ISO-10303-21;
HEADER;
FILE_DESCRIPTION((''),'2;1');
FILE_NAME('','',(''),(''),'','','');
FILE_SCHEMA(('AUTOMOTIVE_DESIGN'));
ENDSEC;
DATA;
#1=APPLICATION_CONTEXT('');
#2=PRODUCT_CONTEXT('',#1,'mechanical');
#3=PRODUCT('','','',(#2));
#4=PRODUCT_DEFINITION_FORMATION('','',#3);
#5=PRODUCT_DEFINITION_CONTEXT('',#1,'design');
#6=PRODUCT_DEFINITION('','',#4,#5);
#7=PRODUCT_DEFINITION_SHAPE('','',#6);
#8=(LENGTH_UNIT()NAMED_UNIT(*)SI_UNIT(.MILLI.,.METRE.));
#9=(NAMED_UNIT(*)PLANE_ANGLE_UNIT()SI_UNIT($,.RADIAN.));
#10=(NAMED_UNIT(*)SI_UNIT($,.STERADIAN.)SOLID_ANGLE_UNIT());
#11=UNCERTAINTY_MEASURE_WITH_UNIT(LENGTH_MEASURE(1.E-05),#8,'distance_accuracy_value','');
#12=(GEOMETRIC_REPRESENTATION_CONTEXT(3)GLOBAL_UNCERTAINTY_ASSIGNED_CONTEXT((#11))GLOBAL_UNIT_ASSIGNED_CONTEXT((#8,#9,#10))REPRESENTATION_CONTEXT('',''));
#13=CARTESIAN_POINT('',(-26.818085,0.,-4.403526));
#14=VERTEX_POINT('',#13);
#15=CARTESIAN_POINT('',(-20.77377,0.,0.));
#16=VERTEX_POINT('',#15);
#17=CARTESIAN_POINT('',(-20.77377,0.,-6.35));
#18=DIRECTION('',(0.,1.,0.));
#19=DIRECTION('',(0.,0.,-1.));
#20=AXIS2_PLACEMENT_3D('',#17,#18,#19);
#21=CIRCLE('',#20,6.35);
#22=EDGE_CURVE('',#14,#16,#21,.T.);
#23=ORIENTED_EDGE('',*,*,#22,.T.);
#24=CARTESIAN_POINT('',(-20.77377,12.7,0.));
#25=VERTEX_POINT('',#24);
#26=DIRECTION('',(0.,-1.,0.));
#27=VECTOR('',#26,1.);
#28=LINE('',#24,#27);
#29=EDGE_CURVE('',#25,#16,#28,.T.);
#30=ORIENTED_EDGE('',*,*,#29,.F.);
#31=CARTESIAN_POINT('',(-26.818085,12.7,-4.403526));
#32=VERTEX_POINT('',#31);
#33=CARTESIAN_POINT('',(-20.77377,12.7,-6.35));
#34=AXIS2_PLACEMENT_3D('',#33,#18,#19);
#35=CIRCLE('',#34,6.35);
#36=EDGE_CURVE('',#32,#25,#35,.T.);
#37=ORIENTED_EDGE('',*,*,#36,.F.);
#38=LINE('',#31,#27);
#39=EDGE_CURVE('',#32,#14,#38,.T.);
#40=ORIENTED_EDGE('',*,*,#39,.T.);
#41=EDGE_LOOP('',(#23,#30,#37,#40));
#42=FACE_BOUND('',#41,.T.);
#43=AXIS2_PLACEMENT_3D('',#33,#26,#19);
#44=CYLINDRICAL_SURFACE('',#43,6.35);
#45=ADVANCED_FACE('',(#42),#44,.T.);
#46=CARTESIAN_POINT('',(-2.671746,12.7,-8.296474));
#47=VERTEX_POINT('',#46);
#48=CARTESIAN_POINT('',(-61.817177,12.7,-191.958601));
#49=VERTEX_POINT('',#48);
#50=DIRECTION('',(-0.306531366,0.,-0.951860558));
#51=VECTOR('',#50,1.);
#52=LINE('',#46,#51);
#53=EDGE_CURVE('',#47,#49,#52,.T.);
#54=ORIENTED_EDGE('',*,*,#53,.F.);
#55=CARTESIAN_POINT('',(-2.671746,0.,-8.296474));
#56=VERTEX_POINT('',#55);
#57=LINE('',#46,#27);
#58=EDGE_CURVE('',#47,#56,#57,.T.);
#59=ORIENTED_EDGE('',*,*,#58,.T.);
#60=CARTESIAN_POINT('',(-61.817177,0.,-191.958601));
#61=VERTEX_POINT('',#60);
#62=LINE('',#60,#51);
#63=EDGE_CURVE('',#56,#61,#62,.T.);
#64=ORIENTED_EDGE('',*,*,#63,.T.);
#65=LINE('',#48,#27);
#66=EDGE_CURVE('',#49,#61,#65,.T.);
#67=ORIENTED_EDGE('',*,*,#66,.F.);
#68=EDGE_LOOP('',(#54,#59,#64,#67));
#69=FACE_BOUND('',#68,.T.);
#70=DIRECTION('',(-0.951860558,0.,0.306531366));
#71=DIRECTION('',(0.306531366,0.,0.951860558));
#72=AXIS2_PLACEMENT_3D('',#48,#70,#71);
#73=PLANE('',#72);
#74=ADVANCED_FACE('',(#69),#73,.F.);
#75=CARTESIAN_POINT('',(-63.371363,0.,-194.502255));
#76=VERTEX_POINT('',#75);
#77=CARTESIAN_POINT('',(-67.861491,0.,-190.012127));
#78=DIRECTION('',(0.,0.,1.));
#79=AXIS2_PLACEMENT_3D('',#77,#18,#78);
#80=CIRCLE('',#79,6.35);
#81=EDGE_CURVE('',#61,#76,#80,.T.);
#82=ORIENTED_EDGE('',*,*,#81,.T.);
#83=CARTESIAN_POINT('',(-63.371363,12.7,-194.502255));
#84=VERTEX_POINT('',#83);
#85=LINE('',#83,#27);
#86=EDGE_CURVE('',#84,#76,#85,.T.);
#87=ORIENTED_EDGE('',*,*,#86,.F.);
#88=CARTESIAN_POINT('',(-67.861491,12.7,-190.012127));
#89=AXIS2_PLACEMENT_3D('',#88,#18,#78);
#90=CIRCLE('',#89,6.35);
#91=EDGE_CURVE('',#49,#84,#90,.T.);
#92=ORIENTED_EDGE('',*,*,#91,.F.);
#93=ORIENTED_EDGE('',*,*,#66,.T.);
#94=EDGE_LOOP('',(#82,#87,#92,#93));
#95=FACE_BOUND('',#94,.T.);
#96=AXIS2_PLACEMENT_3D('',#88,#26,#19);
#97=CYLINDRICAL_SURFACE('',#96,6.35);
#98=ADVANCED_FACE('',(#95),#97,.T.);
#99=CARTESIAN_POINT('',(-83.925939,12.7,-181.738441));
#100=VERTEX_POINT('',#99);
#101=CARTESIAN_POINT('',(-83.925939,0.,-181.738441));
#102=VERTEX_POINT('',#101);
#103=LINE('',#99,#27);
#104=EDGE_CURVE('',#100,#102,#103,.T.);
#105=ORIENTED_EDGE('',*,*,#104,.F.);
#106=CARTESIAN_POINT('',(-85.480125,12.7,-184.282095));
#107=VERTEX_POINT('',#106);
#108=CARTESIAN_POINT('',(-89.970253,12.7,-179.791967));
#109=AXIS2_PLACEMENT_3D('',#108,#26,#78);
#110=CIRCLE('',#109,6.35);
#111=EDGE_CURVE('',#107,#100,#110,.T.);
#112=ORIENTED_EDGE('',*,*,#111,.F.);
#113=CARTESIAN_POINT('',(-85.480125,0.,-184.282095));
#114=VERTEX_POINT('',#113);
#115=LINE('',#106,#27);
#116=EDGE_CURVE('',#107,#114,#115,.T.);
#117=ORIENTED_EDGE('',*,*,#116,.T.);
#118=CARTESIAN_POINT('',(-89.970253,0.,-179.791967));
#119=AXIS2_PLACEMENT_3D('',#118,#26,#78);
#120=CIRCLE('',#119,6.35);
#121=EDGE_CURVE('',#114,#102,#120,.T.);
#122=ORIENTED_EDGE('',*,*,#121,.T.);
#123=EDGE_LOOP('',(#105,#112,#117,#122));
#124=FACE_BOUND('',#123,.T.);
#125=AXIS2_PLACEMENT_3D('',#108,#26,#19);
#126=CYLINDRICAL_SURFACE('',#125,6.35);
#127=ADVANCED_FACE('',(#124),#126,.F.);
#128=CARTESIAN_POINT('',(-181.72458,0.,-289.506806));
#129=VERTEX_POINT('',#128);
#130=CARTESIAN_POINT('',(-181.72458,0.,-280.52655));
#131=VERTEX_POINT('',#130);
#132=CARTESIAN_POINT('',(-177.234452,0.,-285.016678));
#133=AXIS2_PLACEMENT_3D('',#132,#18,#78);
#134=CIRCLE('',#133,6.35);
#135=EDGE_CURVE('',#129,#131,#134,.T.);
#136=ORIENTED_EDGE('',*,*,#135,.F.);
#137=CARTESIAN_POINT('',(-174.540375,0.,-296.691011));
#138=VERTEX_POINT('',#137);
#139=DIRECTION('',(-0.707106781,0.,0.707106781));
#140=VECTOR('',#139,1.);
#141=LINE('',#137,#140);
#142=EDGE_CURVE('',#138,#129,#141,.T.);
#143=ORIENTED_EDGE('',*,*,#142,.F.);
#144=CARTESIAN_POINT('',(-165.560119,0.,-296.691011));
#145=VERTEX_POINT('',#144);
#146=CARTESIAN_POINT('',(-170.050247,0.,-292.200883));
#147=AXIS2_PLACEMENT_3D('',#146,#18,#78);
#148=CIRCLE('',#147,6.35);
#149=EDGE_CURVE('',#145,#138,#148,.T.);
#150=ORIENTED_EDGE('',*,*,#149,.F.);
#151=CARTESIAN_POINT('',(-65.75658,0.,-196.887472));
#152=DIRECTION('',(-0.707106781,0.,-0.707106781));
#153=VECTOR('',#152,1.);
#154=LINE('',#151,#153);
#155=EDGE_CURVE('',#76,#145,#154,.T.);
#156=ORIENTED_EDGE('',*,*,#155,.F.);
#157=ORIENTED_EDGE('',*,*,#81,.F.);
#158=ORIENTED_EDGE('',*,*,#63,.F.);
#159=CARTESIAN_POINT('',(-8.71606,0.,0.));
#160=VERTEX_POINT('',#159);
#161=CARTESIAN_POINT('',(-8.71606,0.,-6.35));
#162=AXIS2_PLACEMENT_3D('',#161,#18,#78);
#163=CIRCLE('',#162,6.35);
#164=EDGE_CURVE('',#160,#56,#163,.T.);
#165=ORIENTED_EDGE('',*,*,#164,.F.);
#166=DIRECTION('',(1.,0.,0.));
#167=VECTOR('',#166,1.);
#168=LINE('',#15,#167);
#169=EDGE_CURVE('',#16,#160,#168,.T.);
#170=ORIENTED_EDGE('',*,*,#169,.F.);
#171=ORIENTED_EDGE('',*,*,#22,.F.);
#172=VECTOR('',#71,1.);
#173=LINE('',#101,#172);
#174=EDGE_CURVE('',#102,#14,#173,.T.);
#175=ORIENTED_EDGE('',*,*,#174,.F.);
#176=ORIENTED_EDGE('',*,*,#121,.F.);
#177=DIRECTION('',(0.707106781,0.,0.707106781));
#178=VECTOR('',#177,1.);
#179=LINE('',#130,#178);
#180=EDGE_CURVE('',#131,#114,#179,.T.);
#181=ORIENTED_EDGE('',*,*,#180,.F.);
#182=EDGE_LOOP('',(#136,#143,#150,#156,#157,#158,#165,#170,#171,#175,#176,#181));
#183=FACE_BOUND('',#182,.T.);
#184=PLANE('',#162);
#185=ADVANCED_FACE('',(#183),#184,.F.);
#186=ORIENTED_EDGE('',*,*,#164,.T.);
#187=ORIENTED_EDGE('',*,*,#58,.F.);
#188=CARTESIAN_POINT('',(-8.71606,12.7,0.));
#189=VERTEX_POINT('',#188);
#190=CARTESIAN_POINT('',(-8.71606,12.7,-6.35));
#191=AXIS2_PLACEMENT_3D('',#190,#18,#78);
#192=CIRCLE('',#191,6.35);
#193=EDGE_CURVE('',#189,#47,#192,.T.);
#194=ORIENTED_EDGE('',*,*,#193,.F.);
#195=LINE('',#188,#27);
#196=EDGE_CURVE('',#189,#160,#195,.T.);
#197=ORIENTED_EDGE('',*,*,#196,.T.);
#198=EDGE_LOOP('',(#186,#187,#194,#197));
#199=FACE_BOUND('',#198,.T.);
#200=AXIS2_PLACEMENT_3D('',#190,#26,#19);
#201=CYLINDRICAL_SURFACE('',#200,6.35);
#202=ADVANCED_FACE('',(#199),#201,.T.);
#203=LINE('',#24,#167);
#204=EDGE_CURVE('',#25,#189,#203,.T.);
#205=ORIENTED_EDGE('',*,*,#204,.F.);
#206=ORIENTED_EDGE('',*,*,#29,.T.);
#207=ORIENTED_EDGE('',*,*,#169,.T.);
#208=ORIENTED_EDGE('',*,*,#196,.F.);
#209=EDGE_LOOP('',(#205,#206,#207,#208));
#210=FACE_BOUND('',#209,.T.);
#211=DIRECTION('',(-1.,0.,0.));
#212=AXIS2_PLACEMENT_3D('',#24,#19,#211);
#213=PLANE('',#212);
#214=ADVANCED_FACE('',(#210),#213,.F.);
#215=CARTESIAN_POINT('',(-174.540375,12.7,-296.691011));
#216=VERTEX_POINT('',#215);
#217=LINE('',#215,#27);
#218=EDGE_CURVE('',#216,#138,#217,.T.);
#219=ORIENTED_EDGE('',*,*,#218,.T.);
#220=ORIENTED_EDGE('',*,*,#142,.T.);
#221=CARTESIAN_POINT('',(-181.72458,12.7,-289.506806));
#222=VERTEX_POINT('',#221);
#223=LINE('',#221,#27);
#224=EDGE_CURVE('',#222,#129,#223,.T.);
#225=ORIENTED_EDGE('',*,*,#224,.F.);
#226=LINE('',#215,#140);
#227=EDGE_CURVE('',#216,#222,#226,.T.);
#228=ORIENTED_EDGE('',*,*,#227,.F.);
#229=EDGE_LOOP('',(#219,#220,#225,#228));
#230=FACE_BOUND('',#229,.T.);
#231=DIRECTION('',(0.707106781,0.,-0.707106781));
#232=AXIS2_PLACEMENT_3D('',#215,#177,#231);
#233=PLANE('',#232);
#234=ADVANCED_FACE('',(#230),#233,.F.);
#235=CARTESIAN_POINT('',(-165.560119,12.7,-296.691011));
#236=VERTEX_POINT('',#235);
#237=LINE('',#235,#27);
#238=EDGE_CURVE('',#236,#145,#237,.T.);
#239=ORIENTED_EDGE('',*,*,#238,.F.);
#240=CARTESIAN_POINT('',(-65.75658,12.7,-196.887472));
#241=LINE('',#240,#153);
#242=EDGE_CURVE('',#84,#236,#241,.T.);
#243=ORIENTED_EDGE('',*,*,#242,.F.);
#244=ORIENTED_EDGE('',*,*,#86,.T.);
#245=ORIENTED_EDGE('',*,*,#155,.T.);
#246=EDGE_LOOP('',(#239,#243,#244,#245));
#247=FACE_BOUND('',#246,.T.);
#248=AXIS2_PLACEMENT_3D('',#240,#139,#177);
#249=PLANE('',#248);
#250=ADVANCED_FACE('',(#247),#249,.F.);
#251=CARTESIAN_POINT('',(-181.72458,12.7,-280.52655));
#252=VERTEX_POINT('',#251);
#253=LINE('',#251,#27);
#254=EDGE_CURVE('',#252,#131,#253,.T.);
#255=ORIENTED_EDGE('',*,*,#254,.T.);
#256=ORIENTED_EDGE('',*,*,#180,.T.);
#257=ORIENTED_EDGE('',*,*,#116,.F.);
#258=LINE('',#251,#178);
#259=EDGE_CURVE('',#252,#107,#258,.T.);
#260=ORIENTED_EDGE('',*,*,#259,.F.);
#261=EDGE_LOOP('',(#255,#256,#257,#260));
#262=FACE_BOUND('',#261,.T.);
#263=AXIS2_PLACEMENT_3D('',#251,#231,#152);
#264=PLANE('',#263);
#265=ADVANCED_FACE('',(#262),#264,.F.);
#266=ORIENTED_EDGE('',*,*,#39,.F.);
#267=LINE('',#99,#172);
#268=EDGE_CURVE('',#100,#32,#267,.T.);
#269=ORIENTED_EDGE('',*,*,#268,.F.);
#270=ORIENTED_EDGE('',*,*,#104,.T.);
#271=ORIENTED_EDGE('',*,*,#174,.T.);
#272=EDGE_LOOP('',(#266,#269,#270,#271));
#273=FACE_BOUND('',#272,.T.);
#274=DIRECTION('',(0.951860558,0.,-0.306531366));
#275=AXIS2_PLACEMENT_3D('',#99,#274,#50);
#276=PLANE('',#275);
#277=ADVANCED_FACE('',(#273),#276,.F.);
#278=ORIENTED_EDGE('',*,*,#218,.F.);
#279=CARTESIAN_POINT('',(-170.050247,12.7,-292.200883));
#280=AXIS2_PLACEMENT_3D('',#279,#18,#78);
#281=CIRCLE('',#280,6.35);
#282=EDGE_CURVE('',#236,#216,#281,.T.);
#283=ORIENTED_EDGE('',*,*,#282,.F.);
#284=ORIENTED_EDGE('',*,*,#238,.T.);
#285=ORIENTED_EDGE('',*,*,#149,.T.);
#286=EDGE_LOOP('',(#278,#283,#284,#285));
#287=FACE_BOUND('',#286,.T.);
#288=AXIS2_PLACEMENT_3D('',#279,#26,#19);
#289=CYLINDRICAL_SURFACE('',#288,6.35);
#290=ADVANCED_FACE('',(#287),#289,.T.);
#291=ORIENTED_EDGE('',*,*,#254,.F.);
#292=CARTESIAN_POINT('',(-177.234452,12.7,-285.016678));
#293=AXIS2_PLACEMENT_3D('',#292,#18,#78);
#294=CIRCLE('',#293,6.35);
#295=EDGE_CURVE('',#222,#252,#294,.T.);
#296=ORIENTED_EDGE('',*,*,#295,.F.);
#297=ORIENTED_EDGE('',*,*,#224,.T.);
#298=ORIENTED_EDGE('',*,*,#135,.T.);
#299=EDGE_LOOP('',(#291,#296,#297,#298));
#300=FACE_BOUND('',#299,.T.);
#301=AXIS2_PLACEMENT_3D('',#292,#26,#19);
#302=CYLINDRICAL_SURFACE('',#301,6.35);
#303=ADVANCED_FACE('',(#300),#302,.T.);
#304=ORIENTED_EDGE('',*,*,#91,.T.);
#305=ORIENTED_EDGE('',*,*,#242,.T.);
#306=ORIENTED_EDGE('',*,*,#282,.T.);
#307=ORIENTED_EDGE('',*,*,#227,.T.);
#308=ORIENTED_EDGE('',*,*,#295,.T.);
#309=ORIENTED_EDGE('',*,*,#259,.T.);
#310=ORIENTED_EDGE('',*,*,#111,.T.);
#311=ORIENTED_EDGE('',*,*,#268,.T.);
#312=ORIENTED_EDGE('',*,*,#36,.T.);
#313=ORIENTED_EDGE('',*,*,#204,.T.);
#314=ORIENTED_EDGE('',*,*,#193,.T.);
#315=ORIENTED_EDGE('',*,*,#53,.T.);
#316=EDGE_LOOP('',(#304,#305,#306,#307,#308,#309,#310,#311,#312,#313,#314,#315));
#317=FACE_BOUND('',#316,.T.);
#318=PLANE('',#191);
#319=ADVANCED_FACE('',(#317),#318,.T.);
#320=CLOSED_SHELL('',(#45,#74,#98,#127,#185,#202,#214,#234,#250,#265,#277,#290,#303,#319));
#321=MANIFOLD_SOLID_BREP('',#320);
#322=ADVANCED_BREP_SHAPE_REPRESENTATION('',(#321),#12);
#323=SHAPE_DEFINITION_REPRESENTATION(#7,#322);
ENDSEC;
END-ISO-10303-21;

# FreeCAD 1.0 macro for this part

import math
import FreeCAD as App
import Part
import Sketcher
Q = App.Units.Quantity

doc = App.newDocument("Part")
body = doc.addObject("PartDesign::Body", "Body")

# Sketch on XZ plane
sketch1 = body.newObject("Sketcher::SketchObject", "Sketch")
sketch1.AttachmentSupport = (doc.getObject("XZ_Plane"), [""])
sketch1.MapMode = "FlatFace"
sketch1.addGeometry(Part.LineSegment(App.Vector(-2.7, -8.3, 0), App.Vector(-60.8, -188.7, 0)), False)
sketch1.addGeometry(Part.LineSegment(App.Vector(-60.8, -188.7, 0), App.Vector(-61.8, -192, 0)), False)
sketch1.addGeometry(Part.ArcOfCircle(Part.Circle(App.Vector(-67.9, -190, 0), App.Vector(0, 0, 1), 6.4), math.radians(-45), math.radians(-18)), False)
sketch1.addGeometry(Part.LineSegment(App.Vector(-63.4, -194.5, 0), App.Vector(-165.6, -296.7, 0)), False)
sketch1.addGeometry(Part.ArcOfCircle(Part.Circle(App.Vector(-170.1, -292.2, 0), App.Vector(0, 0, 1), 6.4), math.radians(-135), math.radians(-45)), False)
sketch1.addGeometry(Part.LineSegment(App.Vector(-174.5, -296.7, 0), App.Vector(-181.7, -289.5, 0)), False)
sketch1.addGeometry(Part.ArcOfCircle(Part.Circle(App.Vector(-177.2, -285, 0), App.Vector(0, 0, 1), 6.4), math.radians(135), math.radians(225)), False)
sketch1.addGeometry(Part.LineSegment(App.Vector(-181.7, -280.5, 0), App.Vector(-85.5, -184.3, 0)), False)
sketch1.addGeometry(Part.ArcOfCircle(Part.Circle(App.Vector(-90, -179.8, 0), App.Vector(0, 0, 1), 6.4), math.radians(-45), math.radians(-18)), False)
sketch1.addGeometry(Part.LineSegment(App.Vector(-83.9, -181.7, 0), App.Vector(-26.8, -4.4, 0)), False)
sketch1.addGeometry(Part.ArcOfCircle(Part.Circle(App.Vector(-20.8, -6.4, 0), App.Vector(0, 0, 1), 6.4), math.radians(90), math.radians(162)), False)
sketch1.addGeometry(Part.LineSegment(App.Vector(-20.8, 0, 0), App.Vector(-8.7, 0, 0)), False)
sketch1.addGeometry(Part.ArcOfCircle(Part.Circle(App.Vector(-8.7, -6.3, 0), App.Vector(0, 0, 1), 6.3), math.radians(-18), math.radians(90)), False)
sketch1.addConstraint(Sketcher.Constraint("Coincident", 0, 2, 1, 1))
sketch1.addConstraint(Sketcher.Constraint("Tangent", 1, 2, 2, 2))
sketch1.addConstraint(Sketcher.Constraint("Tangent", 2, 1, 3, 1))
sketch1.addConstraint(Sketcher.Constraint("Tangent", 3, 2, 4, 2))
sketch1.addConstraint(Sketcher.Constraint("Tangent", 4, 1, 5, 1))
sketch1.addConstraint(Sketcher.Constraint("Tangent", 5, 2, 6, 2))
sketch1.addConstraint(Sketcher.Constraint("Tangent", 6, 1, 7, 1))
sketch1.addConstraint(Sketcher.Constraint("Tangent", 7, 2, 8, 1))
sketch1.addConstraint(Sketcher.Constraint("Tangent", 8, 2, 9, 1))
sketch1.addConstraint(Sketcher.Constraint("Tangent", 9, 2, 10, 2))
sketch1.addConstraint(Sketcher.Constraint("Tangent", 10, 1, 11, 1))
sketch1.addConstraint(Sketcher.Constraint("Tangent", 11, 2, 12, 2))
sketch1.addConstraint(Sketcher.Constraint("Tangent", 12, 1, 0, 1))
sketch1.addConstraint(Sketcher.Constraint("Horizontal", 11))
sketch1.addConstraint(Sketcher.Constraint("Equal", 2, 4))
sketch1.addConstraint(Sketcher.Constraint("Equal", 4, 6))
sketch1.addConstraint(Sketcher.Constraint("Equal", 6, 8))
sketch1.addConstraint(Sketcher.Constraint("Equal", 8, 10))
sketch1.addConstraint(Sketcher.Constraint("Equal", 10, 12))
sketch1.addConstraint(Sketcher.Constraint("PointOnObject", 10, 1, -1))
sketch1.addConstraint(Sketcher.Constraint("Parallel", 0, 1))
sketch1.addConstraint(Sketcher.Constraint("Perpendicular", 3, 5))
sketch1.addConstraint(Sketcher.Constraint("Perpendicular", 5, 7))
sketch1.addConstraint(Sketcher.Constraint("Parallel", 1, 9))
sketch1.addConstraint(Sketcher.Constraint("Horizontal", 3, 2, 4, 1))
sketch1.addConstraint(Sketcher.Constraint("Radius", 2, Q("0.25 in")))
sketch1.addConstraint(Sketcher.Constraint("Distance", 5, Q("0.4 in")))
sketch1.addConstraint(Sketcher.Constraint("DistanceX", 11, 1, 11, 2, 12.05771))
sketch1.addConstraint(Sketcher.Constraint("DistanceY", 1, 2, -1, 1, 191.958601))
sketch1.addConstraint(Sketcher.Constraint("DistanceX", 6, 3, 8, 3, 87.264199))
sketch1.addConstraint(Sketcher.Constraint("DistanceY", 6, 3, 0, 2, 96.268899))
sketch1.addConstraint(Sketcher.Constraint("DistanceX", 0, 2, 9, 2, 33.965099))
sketch1.addConstraint(Sketcher.Constraint("DistanceX", 2, 3, -1, 1, 67.861491))
pad1 = body.newObject("PartDesign::Pad", "Pad")
pad1.Profile = sketch1
pad1.Length = Q("0.5 in")
pad1.Reversed = True

doc.recompute()
